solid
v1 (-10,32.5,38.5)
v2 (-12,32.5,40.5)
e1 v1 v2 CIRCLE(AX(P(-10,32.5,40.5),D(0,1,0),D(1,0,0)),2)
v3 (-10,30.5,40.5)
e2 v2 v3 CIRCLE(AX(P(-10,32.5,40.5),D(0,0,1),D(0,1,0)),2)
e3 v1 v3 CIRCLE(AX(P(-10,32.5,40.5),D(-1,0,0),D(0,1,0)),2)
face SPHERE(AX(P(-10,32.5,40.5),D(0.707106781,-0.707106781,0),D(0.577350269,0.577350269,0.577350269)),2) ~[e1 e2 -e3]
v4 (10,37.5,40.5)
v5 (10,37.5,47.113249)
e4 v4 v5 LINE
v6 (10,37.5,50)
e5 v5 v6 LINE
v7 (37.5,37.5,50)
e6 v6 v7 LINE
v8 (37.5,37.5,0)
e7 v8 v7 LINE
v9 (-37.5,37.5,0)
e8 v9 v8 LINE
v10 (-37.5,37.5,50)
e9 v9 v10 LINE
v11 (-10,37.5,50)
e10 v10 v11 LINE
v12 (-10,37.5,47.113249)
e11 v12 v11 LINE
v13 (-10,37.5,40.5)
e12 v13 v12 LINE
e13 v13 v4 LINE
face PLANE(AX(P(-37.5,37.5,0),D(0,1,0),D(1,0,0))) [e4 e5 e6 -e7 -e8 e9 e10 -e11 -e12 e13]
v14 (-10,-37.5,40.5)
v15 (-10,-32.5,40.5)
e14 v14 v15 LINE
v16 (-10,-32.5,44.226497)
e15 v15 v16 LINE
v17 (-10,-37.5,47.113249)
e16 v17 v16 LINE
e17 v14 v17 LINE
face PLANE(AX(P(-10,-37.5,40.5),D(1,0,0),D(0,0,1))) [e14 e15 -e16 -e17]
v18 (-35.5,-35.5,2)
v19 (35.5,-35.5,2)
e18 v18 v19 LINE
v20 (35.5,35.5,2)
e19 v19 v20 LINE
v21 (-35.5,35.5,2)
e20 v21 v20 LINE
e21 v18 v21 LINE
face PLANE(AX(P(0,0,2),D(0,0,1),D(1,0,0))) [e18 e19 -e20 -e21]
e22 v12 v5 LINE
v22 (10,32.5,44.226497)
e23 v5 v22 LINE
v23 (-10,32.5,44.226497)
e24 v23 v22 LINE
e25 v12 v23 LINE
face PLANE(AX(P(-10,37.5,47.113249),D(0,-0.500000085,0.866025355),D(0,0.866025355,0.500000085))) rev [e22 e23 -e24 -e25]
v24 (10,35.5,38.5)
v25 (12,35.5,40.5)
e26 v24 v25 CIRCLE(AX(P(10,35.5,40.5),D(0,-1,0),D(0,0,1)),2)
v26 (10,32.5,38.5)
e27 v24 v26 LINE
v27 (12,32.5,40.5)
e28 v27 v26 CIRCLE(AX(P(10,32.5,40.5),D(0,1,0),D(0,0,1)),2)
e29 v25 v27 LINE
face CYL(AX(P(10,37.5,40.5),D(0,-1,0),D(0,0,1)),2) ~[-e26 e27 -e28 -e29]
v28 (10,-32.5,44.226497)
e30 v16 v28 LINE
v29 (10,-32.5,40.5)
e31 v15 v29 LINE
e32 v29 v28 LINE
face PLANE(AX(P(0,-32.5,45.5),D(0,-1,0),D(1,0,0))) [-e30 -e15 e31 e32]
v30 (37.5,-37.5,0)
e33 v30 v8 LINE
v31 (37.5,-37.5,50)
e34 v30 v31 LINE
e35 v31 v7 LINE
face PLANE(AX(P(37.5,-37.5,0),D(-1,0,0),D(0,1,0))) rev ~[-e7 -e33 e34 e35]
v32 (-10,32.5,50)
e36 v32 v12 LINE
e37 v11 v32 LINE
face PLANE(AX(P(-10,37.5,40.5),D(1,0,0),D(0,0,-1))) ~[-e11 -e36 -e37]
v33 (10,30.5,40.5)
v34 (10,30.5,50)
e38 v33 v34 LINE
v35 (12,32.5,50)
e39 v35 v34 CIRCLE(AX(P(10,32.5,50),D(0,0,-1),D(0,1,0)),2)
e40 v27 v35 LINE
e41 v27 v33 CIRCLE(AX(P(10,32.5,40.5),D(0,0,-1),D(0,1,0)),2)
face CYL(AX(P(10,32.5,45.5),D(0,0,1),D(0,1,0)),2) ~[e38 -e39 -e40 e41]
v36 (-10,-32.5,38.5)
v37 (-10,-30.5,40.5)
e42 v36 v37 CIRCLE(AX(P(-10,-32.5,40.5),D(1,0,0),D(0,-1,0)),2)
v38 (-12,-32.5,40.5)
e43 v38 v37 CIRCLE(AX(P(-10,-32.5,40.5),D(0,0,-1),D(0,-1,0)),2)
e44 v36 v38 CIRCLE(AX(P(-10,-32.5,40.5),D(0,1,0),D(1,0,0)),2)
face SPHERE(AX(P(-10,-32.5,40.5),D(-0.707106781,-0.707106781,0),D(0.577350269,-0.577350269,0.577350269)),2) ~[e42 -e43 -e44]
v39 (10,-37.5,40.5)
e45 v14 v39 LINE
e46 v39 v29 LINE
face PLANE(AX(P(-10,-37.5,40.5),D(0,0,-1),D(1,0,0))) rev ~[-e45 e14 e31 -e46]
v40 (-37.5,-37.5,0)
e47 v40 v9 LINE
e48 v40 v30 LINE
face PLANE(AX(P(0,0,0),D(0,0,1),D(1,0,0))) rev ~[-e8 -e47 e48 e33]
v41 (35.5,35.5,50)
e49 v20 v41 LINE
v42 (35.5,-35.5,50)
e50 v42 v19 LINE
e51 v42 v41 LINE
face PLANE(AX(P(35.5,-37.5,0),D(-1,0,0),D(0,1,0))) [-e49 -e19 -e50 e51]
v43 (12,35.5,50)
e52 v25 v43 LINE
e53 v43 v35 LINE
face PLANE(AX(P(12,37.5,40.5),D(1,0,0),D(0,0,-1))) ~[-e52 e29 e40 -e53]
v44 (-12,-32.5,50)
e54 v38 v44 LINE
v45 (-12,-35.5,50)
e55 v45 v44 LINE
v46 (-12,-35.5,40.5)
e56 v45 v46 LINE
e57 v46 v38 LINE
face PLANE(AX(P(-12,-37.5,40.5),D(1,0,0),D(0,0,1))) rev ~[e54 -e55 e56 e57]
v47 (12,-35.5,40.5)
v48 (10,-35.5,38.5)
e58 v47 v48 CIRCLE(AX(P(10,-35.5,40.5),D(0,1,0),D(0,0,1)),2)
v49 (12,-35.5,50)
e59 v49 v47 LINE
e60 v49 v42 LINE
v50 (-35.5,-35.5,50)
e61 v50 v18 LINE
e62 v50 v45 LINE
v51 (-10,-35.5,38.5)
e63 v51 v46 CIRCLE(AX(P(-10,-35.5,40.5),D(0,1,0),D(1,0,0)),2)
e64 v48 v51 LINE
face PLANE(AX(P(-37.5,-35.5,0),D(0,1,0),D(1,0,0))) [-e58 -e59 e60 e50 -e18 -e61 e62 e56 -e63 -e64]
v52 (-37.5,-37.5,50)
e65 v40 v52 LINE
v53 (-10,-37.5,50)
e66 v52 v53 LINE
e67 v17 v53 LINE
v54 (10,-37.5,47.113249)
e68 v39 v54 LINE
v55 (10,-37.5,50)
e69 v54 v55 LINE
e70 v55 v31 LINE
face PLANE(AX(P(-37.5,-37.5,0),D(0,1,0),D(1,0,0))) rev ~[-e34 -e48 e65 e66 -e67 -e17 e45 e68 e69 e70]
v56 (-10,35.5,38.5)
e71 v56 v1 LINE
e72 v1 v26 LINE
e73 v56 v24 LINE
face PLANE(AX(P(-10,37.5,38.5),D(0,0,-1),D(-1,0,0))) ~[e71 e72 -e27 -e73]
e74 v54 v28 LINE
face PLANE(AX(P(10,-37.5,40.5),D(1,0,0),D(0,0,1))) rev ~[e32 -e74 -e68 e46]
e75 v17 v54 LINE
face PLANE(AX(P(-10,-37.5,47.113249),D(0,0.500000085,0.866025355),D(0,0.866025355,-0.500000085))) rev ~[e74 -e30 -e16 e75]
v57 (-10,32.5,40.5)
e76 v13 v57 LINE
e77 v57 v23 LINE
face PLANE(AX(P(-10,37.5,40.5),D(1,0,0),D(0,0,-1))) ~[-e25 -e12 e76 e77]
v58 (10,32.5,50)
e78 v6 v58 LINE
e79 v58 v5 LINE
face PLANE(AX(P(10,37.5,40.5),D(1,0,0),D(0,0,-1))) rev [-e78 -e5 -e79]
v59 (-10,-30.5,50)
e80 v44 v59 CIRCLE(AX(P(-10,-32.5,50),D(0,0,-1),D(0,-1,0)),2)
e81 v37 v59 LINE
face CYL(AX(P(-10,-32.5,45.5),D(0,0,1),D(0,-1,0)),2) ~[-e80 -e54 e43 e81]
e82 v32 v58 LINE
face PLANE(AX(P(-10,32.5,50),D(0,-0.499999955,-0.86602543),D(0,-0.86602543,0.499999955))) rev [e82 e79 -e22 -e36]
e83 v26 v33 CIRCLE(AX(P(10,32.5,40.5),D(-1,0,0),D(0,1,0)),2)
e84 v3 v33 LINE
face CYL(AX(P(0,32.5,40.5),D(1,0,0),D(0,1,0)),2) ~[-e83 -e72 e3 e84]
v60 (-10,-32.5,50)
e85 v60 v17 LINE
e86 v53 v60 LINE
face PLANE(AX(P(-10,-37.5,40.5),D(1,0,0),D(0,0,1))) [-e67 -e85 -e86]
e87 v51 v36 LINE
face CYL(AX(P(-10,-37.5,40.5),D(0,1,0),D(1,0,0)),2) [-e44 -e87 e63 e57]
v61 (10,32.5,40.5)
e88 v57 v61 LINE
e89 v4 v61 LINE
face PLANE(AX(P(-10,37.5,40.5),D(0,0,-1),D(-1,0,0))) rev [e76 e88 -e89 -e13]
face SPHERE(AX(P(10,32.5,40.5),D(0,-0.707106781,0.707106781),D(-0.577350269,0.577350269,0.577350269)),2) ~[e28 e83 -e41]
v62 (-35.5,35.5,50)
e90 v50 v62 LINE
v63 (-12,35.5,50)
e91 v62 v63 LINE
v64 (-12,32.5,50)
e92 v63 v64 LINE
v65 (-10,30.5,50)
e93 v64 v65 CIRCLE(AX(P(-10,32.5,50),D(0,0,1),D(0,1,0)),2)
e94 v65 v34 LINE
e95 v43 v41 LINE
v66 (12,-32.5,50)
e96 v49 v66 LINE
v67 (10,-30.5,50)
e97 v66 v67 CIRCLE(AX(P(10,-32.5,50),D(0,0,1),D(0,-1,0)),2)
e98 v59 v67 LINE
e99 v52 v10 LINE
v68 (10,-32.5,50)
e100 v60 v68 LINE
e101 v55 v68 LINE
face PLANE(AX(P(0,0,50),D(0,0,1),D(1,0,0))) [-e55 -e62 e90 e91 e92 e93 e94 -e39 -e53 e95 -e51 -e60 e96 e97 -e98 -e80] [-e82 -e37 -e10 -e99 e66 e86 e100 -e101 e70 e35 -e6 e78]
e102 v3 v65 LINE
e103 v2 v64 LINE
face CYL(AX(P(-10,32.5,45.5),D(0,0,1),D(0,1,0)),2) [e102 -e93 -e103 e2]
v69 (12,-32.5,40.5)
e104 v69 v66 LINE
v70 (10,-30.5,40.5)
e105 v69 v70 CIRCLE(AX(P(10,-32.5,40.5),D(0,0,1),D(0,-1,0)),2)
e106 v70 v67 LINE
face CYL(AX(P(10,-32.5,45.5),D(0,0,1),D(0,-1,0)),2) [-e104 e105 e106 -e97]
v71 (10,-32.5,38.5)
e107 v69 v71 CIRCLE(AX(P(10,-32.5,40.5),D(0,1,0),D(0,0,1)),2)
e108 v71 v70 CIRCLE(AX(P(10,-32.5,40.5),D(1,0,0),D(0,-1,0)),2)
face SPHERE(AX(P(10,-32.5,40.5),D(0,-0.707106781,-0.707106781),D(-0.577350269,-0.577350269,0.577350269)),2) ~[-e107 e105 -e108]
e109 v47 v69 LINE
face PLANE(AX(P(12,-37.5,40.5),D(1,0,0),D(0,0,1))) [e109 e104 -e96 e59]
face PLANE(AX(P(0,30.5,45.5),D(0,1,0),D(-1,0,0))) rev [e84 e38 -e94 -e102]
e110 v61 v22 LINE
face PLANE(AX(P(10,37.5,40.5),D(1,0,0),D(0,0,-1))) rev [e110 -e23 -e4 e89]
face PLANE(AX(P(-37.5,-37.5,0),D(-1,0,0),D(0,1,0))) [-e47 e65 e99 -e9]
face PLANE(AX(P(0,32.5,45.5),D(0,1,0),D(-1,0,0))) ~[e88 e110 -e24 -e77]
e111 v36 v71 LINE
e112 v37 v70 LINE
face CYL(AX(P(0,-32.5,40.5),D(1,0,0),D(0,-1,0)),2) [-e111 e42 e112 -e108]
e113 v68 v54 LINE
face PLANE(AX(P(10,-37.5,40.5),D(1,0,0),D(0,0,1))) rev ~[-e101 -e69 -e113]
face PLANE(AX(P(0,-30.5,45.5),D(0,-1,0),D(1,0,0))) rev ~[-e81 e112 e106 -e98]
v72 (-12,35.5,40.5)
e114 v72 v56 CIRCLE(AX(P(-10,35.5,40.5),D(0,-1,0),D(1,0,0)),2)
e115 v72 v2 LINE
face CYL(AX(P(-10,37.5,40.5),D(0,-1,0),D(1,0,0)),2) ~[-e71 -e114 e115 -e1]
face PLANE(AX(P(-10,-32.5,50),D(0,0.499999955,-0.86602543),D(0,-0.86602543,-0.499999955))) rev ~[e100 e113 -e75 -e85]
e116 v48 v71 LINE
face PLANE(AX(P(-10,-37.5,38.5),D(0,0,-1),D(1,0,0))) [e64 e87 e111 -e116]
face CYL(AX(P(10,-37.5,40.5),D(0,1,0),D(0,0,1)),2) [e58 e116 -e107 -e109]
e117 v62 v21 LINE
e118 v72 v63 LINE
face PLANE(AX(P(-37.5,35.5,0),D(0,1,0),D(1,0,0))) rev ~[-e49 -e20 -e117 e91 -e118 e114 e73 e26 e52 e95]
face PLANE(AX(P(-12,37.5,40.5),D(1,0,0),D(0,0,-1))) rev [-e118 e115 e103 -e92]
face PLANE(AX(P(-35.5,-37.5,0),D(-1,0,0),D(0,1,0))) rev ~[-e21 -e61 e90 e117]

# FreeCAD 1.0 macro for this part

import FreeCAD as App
import Part
import Sketcher
Q = App.Units.Quantity


def faces_at(feature, points):
    """Names of the faces that lie closest to the given points."""
    faces = feature.Shape.Faces
    near = lambda p: min(range(len(faces)), key=lambda i: faces[i].distToShape(Part.Vertex(*p))[0])
    return sorted({f"Face{near(p) + 1}" for p in points})


def add_polygon(sketch, points):
    """Adds a closed chain of lines whose ends are joined by coincident constraints."""
    first, n = sketch.GeometryCount, len(points)
    for a, b in zip(points, points[1:] + points[:1]):
        sketch.addGeometry(Part.LineSegment(App.Vector(*a, 0), App.Vector(*b, 0)), False)
    for i in range(n):
        sketch.addConstraint(Sketcher.Constraint("Coincident", first + i, 2, first + (i + 1) % n, 1))

doc = App.newDocument("Part")
body = doc.addObject("PartDesign::Body", "Body")

# Sketch on XY plane
sketch1 = body.newObject("Sketcher::SketchObject", "Sketch")
sketch1.AttachmentSupport = (doc.getObject("XY_Plane"), [""])
sketch1.MapMode = "FlatFace"
add_polygon(sketch1, [(-38, 38), (-38, -38), (38, -38), (38, 38)])  # lines 0-3
sketch1.addConstraint([
    Sketcher.Constraint("Vertical", 0),
    Sketcher.Constraint("Horizontal", 1),
    Sketcher.Constraint("Vertical", 2),
    Sketcher.Constraint("Horizontal", 3),
    Sketcher.Constraint("Symmetric", 0, 2, 2, 2, -1, 1),
    Sketcher.Constraint("Equal", 3, 0),
    Sketcher.Constraint("DistanceX", 1, 1, 1, 2, 75.0),
])
pad1 = body.newObject("PartDesign::Pad", "Pad")
pad1.Profile = sketch1
pad1.Length = 50

# Sketch on XZ plane
sketch2 = body.newObject("Sketcher::SketchObject", "Sketch001")
sketch2.AttachmentSupport = (doc.getObject("XZ_Plane"), [""])
sketch2.MapMode = "FlatFace"
sketch2.AttachmentOffset = App.Placement(App.Vector(0, 0, 37.5), App.Rotation())
add_polygon(sketch2, [(-10, 50), (-10, 40), (10, 40), (10, 50)])  # lines 0-3
sketch2.addConstraint([
    Sketcher.Constraint("Vertical", 0),
    Sketcher.Constraint("Horizontal", 1),
    Sketcher.Constraint("Vertical", 2),
    Sketcher.Constraint("Horizontal", 3),
    Sketcher.Constraint("DistanceX", 1, 1, 1, 2, 20.0),
    Sketcher.Constraint("DistanceY", 0, 2, 0, 1, 10.0),
    Sketcher.Constraint("DistanceX", 0, 2, -1, 1, 10.0),
    Sketcher.Constraint("DistanceY", -1, 1, 0, 2, 40.5),
])
pocket1 = body.newObject("PartDesign::Pocket", "Pocket")
pocket1.Profile = sketch2
pocket1.Length = 5
doc.recompute()

mirrored = body.newObject("PartDesign::Mirrored", "Mirrored")
mirrored.Originals = [pocket1]
mirrored.MirrorPlane = (doc.getObject("XZ_Plane"), [""])
body.Tip = mirrored
doc.recompute()

thickness = body.newObject("PartDesign::Thickness", "Thickness")
thickness.Base = (mirrored, faces_at(mirrored, [(0, 0, 50)]))
thickness.Value = 2
thickness.Reversed = True
thickness.Join = "Arc"

# Sketch on YZ plane
sketch3 = body.newObject("Sketcher::SketchObject", "Sketch002")
sketch3.AttachmentSupport = (doc.getObject("YZ_Plane"), [""])
sketch3.MapMode = "FlatFace"
sketch3.AttachmentOffset = App.Placement(App.Vector(0, 0, -10), App.Rotation())
add_polygon(sketch3, [(-32, 50), (-38, 47), (-32, 44)])  # lines 0-2
sketch3.addConstraint([
    Sketcher.Constraint("Vertical", 2),
    Sketcher.Constraint("Equal", 0, 1),
    Sketcher.Constraint("Angle", 0, Q("-150.000003 deg")),
    Sketcher.Constraint("DistanceY", -1, 1, 2, 2, 50.0),
    Sketcher.Constraint("DistanceX", 0, 2, 1, 2, 5.0),
    Sketcher.Constraint("DistanceX", 0, 2, -1, 1, 37.5),
])
pad2 = body.newObject("PartDesign::Pad", "Pad001")
pad2.Profile = sketch3
pad2.Length = 20
doc.recompute()

mirrored2 = body.newObject("PartDesign::Mirrored", "Mirrored001")
mirrored2.Originals = [pad2]
mirrored2.MirrorPlane = (doc.getObject("XZ_Plane"), [""])
body.Tip = mirrored2

doc.recompute()
